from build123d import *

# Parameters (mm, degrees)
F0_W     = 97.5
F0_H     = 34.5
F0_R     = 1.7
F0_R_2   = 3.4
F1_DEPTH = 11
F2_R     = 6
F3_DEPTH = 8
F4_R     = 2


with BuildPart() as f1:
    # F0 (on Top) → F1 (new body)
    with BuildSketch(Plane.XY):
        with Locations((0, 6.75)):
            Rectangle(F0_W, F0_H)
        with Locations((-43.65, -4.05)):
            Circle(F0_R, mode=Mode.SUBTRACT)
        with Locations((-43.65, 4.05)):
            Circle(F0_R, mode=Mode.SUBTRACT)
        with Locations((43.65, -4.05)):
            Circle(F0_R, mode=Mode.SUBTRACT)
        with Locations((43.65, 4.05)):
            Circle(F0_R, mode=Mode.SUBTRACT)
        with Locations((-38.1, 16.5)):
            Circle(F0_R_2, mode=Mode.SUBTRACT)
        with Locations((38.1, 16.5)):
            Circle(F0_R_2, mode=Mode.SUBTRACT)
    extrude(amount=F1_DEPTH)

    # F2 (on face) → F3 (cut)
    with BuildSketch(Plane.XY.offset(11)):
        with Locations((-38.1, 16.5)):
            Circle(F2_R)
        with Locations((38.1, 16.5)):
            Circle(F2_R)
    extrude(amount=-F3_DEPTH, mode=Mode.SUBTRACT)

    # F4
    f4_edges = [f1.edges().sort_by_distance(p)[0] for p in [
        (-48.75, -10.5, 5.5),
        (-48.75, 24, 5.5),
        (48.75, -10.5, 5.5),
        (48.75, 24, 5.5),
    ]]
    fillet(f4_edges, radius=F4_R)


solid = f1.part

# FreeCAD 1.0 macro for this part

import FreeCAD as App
import Part
import Sketcher

V = App.Vector


def edges_at(feature, points):
    """Names of the edges that pass closest to the given points."""
    edges = feature.Shape.Edges
    near = lambda p: min(range(len(edges)), key=lambda i: edges[i].distToShape(Part.Vertex(*p))[0])
    return sorted({f"Edge{near(p) + 1}" for p in points})


def add_polygon(sketch, points):
    """Adds a closed chain of lines whose ends are joined by coincident constraints."""
    first, n = sketch.GeometryCount, len(points)
    for a, b in zip(points, points[1:] + points[:1]):
        sketch.addGeometry(Part.LineSegment(App.Vector(*a, 0), App.Vector(*b, 0)), False)
    for i in range(n):
        sketch.addConstraint(Sketcher.Constraint("Coincident", first + i, 2, first + (i + 1) % n, 1))

doc = App.newDocument("Part")
params = doc.addObject("Spreadsheet::Sheet", "Params")
for row, (alias, value) in enumerate([
    ("sketch1_diameter", "3.4 mm"),
    ("sketch1_diameter2", "6.8 mm"),
    ("sketch1_width", "97.5 mm"),
    ("sketch1_height", "34.5 mm"),
    ("pad1_length", "11 mm"),
    ("sketch2_diameter", "12 mm"),
    ("pocket1_length", "8 mm"),
    ("fillet_radius", "2 mm"),
], start=1):
    params.set(f"A{row}", alias)
    params.set(f"B{row}", "=" + value)
    params.setAlias(f"B{row}", alias)

body = doc.addObject("PartDesign::Body", "Body")

# Sketch on XY plane
sketch1 = body.newObject("Sketcher::SketchObject", "Sketch")
sketch1.AttachmentSupport = (doc.getObject("XY_Plane"), [""])
sketch1.MapMode = "FlatFace"
add_polygon(sketch1, [(-48.8, 24), (-48.8, -10.5), (48.8, -10.5), (48.8, 24)])  # lines 0-3
sketch1.addGeometry(Part.Circle(V(-43.6, -4, 0), V(0, 0, 1), 1.7), False)  # 4
sketch1.addGeometry(Part.Circle(V(-43.6, 4, 0), V(0, 0, 1), 1.7), False)  # 5
sketch1.addGeometry(Part.Circle(V(43.6, -4, 0), V(0, 0, 1), 1.7), False)  # 6
sketch1.addGeometry(Part.Circle(V(43.6, 4, 0), V(0, 0, 1), 1.7), False)  # 7
sketch1.addGeometry(Part.Circle(V(-38.1, 16.5, 0), V(0, 0, 1), 3.4), False)  # 8
sketch1.addGeometry(Part.Circle(V(38.1, 16.5, 0), V(0, 0, 1), 3.4), False)  # 9
sketch1.addConstraint([
    Sketcher.Constraint("Vertical", 0),
    Sketcher.Constraint("Horizontal", 1),
    Sketcher.Constraint("Vertical", 2),
    Sketcher.Constraint("Horizontal", 3),
    Sketcher.Constraint("Equal", 4, 5),
    Sketcher.Constraint("Equal", 5, 6),
    Sketcher.Constraint("Equal", 6, 7),
    Sketcher.Constraint("Equal", 8, 9),
    Sketcher.Constraint("Symmetric", 5, 3, 6, 3, -1, 1),
    Sketcher.Constraint("Symmetric", 4, 3, 7, 3, -1, 1),
    Sketcher.Constraint("Symmetric", 4, 3, 6, 3, -2),
    Sketcher.Constraint("Symmetric", 8, 3, 9, 3, -2),
    Sketcher.Constraint("Diameter", 4, 3.4),
    Sketcher.Constraint("Diameter", 8, 6.8),
    Sketcher.Constraint("DistanceX", 1, 1, 1, 2, 97.5),
    Sketcher.Constraint("DistanceY", 0, 2, 0, 1, 34.5),
    Sketcher.Constraint("DistanceY", -1, 1, 2, 2, 24.0),
    Sketcher.Constraint("DistanceY", 0, 2, 8, 3, 27.0),
    Sketcher.Constraint("DistanceX", 8, 3, -1, 1, 38.1),
    Sketcher.Constraint("DistanceY", 4, 3, 5, 3, 8.1),
    Sketcher.Constraint("DistanceX", 4, 3, 6, 3, 87.3),
    Sketcher.Constraint("DistanceX", 0, 2, 4, 3, 5.1),
])
sketch1.setExpression("Constraints[16]", "Params.sketch1_diameter")
sketch1.setExpression("Constraints[17]", "Params.sketch1_diameter2")
sketch1.setExpression("Constraints[18]", "Params.sketch1_width")
sketch1.setExpression("Constraints[19]", "Params.sketch1_height")
pad1 = body.newObject("PartDesign::Pad", "Pad")
pad1.Profile = sketch1
pad1.setExpression("Length", "Params.pad1_length")

# Sketch on XY plane
sketch2 = body.newObject("Sketcher::SketchObject", "Sketch001")
sketch2.AttachmentSupport = (doc.getObject("XY_Plane"), [""])
sketch2.MapMode = "FlatFace"
sketch2.AttachmentOffset = App.Placement(V(0, 0, 11), App.Rotation())
sketch2.addGeometry([
    Part.Circle(V(-38, 16, 0), V(0, 0, 1), 6),
    Part.Circle(V(38, 16, 0), V(0, 0, 1), 6),
], False)
sketch2.addConstraint([
    Sketcher.Constraint("Equal", 0, 1),
    Sketcher.Constraint("Symmetric", 0, 3, 1, 3, -2),
    Sketcher.Constraint("Diameter", 0, 12.0),
    Sketcher.Constraint("DistanceX", 0, 3, -1, 1, 38.1),
    Sketcher.Constraint("DistanceY", -1, 1, 0, 3, 16.5),
])
sketch2.setExpression("Constraints[2]", "Params.sketch2_diameter")
pocket1 = body.newObject("PartDesign::Pocket", "Pocket")
pocket1.Profile = sketch2
pocket1.setExpression("Length", "Params.pocket1_length")
doc.recompute()

fillet = body.newObject("PartDesign::Fillet", "Fillet")
fillet.Base = (pocket1, edges_at(pocket1, [
    (-48.75, -10.5, 5.5),
    (-48.75, 24, 5.5),
    (48.75, -10.5, 5.5),
    (48.75, 24, 5.5),
]))
fillet.setExpression("Radius", "Params.fillet_radius")

doc.recompute()
